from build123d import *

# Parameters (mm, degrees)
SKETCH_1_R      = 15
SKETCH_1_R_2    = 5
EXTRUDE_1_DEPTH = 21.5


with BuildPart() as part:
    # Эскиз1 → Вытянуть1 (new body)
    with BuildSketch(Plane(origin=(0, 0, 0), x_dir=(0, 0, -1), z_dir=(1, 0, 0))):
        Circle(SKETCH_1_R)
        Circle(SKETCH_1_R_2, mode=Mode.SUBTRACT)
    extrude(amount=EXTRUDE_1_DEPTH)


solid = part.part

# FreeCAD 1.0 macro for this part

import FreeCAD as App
import Part
import Sketcher

V = App.Vector

doc = App.newDocument("Part")
body = doc.addObject("PartDesign::Body", "Body")

# Sketch on YZ plane
sketch1 = body.newObject("Sketcher::SketchObject", "Sketch")
sketch1.AttachmentSupport = (doc.getObject("YZ_Plane"), [""])
sketch1.MapMode = "FlatFace"
sketch1.addGeometry([
    Part.Circle(V(0, 0, 0), V(0, 0, 1), 15),
    Part.Circle(V(0, 0, 0), V(0, 0, 1), 5),
], False)
sketch1.addConstraint([
    Sketcher.Constraint("Coincident", 0, 3, -1, 1),
    Sketcher.Constraint("Coincident", 1, 3, -1, 1),
    Sketcher.Constraint("Diameter", 0, 30.0),
    Sketcher.Constraint("Diameter", 1, 10.0),
])
pad1 = body.newObject("PartDesign::Pad", "Pad")
pad1.Profile = sketch1
pad1.Length = 21.5

doc.recompute()
